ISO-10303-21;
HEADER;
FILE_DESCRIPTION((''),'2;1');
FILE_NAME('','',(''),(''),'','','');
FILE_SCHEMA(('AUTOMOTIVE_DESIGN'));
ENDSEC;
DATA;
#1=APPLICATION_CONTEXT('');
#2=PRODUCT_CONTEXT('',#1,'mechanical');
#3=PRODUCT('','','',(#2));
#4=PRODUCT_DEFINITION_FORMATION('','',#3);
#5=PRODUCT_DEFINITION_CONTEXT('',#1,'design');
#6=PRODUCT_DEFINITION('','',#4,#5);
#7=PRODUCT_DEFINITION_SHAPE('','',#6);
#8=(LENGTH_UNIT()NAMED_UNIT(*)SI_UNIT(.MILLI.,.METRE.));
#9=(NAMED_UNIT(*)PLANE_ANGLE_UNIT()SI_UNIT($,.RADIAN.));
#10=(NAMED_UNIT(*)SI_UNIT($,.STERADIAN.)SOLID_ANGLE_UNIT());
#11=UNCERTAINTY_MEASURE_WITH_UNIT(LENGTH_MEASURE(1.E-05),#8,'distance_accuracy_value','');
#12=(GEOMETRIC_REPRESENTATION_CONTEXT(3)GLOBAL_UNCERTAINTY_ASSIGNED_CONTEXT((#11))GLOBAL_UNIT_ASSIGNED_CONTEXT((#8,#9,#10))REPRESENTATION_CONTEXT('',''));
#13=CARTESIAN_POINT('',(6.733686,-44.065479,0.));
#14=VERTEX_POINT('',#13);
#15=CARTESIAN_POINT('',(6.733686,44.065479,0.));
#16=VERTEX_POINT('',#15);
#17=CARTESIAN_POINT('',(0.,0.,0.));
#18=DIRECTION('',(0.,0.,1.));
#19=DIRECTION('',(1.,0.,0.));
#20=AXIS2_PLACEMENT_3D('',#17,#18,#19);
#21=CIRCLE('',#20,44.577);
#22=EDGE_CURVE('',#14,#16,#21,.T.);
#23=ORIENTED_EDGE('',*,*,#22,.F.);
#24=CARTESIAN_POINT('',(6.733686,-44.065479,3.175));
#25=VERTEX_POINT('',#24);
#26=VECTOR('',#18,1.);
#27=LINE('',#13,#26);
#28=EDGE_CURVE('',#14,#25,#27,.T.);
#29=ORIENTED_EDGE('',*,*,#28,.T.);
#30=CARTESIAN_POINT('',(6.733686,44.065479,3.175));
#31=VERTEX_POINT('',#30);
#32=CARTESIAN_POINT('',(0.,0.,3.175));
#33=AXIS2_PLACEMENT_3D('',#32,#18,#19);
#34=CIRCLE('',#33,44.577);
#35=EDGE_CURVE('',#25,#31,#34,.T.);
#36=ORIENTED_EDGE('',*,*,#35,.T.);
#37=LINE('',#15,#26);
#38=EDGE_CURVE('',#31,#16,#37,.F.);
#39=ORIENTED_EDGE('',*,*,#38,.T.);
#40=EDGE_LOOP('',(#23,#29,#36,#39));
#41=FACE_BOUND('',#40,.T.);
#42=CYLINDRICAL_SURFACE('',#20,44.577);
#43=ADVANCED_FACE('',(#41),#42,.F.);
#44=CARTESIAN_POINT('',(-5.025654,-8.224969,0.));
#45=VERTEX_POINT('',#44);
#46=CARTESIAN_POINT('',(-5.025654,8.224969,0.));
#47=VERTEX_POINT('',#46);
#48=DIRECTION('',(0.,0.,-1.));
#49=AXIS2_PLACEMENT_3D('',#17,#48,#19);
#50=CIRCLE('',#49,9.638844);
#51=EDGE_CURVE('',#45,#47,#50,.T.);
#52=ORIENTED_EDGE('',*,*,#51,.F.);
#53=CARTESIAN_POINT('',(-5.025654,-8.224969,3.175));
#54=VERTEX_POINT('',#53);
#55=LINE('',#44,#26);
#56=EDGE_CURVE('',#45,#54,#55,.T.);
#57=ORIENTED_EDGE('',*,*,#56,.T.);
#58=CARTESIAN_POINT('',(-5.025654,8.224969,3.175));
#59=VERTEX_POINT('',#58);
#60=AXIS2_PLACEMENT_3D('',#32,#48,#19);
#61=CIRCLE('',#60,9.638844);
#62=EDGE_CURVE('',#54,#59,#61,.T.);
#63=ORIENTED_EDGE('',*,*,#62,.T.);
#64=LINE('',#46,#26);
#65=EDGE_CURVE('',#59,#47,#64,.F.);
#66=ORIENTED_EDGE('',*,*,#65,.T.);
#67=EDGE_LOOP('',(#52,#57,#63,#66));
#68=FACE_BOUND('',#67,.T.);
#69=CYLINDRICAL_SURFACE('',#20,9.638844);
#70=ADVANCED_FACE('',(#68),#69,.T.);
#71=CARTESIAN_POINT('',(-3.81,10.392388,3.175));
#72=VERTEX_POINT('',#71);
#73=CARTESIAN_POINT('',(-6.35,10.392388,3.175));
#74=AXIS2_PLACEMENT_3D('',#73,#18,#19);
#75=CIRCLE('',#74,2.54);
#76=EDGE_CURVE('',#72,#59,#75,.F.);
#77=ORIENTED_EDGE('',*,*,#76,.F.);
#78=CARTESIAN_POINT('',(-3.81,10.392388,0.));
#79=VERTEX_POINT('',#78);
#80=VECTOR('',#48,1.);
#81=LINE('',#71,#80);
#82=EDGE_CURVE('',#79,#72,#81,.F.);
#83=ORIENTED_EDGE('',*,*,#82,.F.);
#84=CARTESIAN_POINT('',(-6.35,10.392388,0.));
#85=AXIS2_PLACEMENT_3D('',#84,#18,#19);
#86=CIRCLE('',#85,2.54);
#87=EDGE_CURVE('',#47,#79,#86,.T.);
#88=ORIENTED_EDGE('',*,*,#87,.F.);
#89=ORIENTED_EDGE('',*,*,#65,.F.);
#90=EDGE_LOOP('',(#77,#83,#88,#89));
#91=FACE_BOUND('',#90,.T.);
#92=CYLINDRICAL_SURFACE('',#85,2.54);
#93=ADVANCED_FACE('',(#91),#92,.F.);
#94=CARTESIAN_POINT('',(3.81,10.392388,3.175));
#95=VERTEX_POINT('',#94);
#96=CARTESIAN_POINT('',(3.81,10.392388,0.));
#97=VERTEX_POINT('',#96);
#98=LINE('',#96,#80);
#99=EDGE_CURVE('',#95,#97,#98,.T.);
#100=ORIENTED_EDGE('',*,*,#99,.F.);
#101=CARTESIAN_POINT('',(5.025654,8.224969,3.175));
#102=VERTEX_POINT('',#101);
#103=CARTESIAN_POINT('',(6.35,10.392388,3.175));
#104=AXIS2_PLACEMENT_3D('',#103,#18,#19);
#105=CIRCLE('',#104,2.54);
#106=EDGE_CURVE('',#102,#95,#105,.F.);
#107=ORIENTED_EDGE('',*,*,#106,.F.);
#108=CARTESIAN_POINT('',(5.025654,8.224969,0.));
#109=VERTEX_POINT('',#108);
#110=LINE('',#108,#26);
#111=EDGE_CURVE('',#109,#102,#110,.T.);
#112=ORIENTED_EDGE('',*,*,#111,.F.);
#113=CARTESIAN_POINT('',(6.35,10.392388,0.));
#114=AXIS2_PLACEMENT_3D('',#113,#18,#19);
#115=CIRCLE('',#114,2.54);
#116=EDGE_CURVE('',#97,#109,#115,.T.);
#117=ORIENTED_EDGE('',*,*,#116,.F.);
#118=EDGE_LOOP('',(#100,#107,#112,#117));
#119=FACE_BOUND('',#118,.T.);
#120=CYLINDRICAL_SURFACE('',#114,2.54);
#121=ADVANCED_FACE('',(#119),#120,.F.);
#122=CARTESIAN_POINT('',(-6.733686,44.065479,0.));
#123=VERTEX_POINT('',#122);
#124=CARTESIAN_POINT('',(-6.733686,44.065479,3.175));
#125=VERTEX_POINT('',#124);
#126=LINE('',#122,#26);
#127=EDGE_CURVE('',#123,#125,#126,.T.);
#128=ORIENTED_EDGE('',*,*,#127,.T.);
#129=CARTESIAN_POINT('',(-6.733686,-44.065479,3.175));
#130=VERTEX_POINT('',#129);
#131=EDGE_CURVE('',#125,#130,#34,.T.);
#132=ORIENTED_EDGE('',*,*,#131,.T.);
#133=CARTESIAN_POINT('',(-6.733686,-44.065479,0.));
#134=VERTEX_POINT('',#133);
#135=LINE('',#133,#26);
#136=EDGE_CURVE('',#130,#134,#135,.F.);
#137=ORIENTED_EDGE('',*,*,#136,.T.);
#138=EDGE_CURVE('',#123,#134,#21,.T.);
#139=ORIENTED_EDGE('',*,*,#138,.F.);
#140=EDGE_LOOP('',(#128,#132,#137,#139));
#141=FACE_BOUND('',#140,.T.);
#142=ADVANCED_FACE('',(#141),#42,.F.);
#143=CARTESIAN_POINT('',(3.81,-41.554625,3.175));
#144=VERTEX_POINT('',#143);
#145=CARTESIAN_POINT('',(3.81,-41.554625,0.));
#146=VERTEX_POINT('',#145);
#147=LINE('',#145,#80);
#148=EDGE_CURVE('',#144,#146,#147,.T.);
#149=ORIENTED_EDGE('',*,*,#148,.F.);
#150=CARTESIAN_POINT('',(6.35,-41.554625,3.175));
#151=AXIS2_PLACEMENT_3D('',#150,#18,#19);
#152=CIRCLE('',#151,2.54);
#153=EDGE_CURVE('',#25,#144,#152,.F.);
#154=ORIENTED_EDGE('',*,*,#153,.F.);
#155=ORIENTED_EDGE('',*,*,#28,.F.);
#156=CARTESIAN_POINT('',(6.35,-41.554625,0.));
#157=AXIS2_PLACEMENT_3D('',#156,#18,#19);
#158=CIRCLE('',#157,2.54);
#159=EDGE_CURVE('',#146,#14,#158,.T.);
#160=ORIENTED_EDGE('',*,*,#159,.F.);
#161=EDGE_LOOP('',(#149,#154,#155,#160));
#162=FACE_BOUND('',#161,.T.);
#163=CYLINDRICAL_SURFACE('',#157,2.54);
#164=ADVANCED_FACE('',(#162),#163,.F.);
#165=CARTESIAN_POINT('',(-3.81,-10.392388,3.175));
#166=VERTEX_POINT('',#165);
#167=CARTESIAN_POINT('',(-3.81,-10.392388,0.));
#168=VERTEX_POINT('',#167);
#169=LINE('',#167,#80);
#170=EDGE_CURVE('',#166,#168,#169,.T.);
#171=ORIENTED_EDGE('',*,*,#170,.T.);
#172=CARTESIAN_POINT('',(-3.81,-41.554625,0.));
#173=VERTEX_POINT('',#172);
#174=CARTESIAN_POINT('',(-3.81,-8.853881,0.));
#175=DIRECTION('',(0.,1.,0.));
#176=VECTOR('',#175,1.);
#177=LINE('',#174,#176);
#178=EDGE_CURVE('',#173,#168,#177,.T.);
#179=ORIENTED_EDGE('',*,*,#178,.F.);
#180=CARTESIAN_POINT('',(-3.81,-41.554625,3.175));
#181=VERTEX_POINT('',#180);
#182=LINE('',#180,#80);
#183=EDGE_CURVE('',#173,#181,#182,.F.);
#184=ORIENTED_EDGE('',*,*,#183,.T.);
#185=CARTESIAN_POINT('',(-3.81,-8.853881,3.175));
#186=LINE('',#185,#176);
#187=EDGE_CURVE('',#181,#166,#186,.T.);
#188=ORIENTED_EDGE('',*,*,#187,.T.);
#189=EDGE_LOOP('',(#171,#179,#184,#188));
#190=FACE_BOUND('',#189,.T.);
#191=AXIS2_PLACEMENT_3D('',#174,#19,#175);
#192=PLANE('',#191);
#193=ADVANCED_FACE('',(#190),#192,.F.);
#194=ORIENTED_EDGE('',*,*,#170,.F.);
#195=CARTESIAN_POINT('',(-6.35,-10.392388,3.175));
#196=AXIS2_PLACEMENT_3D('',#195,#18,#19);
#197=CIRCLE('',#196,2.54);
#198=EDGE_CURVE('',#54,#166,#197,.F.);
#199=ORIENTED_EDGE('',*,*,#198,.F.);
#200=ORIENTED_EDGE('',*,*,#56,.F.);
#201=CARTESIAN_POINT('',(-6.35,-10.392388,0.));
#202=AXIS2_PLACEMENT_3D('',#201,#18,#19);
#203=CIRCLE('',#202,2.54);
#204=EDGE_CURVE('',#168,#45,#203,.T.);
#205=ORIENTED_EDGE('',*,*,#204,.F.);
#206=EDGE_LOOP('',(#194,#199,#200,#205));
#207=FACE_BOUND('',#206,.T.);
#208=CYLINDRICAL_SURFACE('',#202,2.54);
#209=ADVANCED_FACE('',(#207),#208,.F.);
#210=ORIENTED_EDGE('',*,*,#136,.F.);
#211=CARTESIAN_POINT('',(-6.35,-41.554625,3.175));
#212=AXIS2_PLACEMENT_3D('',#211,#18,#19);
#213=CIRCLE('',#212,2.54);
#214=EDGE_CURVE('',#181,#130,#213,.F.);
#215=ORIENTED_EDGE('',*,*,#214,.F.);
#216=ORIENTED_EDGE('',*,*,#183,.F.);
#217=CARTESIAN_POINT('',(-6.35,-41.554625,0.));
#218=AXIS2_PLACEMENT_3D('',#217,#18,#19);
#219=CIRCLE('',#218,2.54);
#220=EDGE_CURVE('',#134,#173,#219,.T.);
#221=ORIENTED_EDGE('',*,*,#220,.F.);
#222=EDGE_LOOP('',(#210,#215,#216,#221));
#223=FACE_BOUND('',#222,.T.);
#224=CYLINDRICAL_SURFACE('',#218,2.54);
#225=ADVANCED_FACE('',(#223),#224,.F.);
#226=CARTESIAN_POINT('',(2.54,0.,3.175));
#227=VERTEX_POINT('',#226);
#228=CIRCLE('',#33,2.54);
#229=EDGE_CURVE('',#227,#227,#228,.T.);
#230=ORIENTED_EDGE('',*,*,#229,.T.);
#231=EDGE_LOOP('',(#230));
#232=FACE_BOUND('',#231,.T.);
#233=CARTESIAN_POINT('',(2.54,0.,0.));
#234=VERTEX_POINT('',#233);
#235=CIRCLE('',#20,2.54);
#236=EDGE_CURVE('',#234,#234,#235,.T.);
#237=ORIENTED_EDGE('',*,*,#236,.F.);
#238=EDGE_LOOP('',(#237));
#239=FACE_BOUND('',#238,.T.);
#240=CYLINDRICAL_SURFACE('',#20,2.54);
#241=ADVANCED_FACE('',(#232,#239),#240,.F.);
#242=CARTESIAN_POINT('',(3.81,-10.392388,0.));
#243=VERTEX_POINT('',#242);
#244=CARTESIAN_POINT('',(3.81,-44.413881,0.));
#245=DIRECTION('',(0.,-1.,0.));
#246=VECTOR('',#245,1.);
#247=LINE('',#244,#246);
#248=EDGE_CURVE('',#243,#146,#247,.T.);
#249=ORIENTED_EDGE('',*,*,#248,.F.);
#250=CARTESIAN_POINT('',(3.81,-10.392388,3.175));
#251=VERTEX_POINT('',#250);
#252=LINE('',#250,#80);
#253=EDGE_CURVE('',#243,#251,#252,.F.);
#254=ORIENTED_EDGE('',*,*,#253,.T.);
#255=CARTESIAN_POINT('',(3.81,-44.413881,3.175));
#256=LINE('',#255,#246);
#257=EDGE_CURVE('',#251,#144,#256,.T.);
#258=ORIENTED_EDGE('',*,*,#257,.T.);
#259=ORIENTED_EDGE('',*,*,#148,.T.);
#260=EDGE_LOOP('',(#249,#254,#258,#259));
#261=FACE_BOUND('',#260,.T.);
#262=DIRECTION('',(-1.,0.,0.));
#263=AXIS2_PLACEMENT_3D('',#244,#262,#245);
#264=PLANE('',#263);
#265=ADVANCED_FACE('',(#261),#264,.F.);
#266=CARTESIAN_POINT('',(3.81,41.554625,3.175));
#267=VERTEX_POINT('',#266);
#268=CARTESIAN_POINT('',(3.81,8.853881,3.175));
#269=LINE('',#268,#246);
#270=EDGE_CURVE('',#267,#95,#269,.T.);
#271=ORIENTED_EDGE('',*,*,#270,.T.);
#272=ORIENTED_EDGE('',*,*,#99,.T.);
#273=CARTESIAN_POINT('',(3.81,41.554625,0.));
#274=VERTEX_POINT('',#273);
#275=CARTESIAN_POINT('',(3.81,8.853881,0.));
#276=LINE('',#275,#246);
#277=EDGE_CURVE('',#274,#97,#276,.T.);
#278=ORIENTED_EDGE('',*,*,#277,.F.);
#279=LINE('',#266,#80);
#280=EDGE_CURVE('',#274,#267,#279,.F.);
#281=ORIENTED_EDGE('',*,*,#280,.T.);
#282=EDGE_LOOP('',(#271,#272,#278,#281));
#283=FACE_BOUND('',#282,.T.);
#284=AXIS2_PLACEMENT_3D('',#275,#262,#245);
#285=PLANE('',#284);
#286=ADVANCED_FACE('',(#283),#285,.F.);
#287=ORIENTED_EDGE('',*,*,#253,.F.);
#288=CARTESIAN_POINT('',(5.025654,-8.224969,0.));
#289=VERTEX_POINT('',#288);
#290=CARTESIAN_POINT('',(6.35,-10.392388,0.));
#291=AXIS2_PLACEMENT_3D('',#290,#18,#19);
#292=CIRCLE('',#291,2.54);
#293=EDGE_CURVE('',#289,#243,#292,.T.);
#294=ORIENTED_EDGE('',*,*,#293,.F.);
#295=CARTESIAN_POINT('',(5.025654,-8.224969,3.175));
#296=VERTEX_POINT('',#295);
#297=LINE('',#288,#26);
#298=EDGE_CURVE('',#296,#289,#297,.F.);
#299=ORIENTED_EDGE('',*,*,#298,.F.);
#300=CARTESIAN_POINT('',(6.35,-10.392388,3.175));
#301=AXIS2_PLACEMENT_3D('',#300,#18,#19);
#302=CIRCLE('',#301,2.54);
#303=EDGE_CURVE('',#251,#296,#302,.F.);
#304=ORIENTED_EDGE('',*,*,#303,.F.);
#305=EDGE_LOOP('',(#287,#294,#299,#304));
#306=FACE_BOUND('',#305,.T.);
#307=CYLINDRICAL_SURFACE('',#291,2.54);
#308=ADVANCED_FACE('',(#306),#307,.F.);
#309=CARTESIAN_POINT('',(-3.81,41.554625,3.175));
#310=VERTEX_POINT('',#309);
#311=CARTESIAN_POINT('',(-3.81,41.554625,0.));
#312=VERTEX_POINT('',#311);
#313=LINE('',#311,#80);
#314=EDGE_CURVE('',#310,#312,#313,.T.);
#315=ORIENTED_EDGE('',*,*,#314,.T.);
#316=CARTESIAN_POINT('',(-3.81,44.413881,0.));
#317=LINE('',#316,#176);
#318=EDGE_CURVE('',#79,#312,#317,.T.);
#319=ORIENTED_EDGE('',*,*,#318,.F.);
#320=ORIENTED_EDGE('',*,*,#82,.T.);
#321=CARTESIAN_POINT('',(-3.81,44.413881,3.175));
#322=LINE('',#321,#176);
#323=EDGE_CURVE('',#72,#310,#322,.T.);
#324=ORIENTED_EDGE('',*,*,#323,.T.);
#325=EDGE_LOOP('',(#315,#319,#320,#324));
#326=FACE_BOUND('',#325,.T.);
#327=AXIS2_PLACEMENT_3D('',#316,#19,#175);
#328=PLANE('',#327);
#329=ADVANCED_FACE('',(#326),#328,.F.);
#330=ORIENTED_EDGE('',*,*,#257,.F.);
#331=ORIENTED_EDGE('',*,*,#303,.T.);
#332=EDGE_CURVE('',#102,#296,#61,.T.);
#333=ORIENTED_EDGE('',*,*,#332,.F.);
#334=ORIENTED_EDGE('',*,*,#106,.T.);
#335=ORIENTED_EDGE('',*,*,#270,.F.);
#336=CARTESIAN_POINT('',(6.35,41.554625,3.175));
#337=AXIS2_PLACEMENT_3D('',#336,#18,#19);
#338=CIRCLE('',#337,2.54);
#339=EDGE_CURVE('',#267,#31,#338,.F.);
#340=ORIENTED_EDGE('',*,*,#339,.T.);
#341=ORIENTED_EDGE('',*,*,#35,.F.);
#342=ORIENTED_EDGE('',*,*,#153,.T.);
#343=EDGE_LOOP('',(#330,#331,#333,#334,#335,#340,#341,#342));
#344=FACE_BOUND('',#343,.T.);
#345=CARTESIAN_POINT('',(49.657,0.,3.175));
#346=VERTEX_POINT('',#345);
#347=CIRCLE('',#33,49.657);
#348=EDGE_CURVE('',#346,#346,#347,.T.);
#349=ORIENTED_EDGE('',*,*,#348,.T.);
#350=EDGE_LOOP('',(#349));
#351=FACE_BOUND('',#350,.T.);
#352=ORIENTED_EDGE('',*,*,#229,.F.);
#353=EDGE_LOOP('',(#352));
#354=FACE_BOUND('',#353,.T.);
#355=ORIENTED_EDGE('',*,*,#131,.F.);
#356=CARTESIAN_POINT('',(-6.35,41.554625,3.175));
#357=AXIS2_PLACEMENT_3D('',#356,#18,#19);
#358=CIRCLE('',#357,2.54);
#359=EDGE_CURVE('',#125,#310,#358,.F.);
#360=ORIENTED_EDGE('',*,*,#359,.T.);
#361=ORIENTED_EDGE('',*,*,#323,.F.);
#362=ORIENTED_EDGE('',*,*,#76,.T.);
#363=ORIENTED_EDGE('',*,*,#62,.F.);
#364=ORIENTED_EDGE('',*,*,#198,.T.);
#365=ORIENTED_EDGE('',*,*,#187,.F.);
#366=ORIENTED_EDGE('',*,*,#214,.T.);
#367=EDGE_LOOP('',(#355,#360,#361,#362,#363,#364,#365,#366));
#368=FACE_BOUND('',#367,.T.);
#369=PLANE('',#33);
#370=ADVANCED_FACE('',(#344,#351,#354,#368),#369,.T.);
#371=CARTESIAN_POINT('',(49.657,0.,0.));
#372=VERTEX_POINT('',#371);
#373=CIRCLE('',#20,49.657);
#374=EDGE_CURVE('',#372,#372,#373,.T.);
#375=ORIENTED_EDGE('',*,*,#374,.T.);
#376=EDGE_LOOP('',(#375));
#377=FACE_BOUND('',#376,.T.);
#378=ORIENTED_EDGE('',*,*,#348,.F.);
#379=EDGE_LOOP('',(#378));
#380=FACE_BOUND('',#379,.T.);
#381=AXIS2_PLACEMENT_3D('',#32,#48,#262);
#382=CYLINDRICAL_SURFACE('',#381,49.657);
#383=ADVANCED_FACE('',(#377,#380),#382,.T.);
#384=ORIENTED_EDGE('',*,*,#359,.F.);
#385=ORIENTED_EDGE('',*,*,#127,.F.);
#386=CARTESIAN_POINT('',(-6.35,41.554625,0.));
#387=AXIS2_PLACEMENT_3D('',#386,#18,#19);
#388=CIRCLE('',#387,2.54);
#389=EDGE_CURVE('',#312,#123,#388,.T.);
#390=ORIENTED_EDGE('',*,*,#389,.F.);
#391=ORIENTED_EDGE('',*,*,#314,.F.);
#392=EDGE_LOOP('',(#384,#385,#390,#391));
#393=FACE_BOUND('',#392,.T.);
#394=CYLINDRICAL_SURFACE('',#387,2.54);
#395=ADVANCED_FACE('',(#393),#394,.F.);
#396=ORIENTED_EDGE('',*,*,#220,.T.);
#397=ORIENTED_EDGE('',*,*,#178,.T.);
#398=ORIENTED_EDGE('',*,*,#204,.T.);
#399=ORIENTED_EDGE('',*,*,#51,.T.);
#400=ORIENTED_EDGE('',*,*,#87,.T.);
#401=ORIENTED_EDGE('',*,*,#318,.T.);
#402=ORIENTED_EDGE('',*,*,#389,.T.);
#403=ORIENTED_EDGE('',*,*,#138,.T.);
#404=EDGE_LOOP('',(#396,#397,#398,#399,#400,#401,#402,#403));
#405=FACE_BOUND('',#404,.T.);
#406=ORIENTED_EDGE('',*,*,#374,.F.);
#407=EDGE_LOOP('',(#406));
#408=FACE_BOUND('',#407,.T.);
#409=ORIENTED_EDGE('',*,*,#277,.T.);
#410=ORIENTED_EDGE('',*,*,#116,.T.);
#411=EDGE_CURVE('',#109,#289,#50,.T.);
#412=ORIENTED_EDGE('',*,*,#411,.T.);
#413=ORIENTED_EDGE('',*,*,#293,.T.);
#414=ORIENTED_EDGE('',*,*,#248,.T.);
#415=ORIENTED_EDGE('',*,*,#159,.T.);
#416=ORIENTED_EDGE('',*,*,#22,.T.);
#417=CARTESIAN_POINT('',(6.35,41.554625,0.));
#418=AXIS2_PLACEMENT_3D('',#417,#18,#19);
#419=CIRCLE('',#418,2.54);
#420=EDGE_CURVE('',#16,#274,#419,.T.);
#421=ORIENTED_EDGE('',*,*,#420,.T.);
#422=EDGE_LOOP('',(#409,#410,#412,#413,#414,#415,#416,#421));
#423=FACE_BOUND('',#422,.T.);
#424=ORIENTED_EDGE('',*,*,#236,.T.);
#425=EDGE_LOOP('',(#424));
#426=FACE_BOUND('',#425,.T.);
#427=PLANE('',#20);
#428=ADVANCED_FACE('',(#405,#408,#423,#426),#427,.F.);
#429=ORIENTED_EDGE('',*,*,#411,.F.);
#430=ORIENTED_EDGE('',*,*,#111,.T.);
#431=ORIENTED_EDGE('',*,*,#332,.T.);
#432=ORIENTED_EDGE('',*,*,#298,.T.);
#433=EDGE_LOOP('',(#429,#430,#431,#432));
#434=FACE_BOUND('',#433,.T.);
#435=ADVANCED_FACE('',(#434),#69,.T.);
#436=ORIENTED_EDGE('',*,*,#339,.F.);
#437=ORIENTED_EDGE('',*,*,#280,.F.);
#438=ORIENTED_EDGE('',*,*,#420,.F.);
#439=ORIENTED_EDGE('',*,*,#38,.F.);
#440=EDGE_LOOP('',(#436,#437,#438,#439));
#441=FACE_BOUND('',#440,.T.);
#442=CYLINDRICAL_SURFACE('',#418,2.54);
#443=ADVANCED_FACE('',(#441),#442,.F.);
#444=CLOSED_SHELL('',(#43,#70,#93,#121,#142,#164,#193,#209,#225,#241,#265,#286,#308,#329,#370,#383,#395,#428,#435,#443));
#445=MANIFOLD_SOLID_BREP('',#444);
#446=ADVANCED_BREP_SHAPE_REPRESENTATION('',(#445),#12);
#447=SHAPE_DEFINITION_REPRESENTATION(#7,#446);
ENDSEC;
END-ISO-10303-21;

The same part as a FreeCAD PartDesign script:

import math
import FreeCAD as App
import Part
import Sketcher

V = App.Vector
Q = App.Units.Quantity


def edges_at(feature, points):
    """Names of the edges that pass closest to the given points."""
    edges = feature.Shape.Edges
    near = lambda p: min(range(len(edges)), key=lambda i: edges[i].distToShape(Part.Vertex(*p))[0])
    return sorted({f"Edge{near(p) + 1}" for p in points})

doc = App.newDocument("Part")
body = doc.addObject("PartDesign::Body", "Body")

# Sketch on XY plane
sketch1 = doc.addObject("Sketcher::SketchObject", "Sketch")
body.addObject(sketch1)
sketch1.AttachmentSupport = (doc.XY_Plane, [""])
sketch1.MapMode = "FlatFace"
sketch1.addGeometry(Part.Circle(V(0, 0, 0), V(0, 0, 1), 50), False)
sketch1.addConstraint(Sketcher.Constraint("Coincident", 0, 3, -1, 1))
sketch1.addConstraint(Sketcher.Constraint("Diameter", 0, Q("3.91 in")))
pad1 = doc.addObject("PartDesign::Pad", "Pad")
body.addObject(pad1)
pad1.Profile = sketch1
pad1.Length = Q("0.125 in")

# Sketch on XY plane
sketch2 = doc.addObject("Sketcher::SketchObject", "Sketch001")
body.addObject(sketch2)
sketch2.AttachmentSupport = (doc.XY_Plane, [""])
sketch2.MapMode = "FlatFace"
sketch2.AttachmentOffset = App.Placement(V(0, 0, 0.125 * 25.4), App.Rotation())
sketch2.addGeometry(Part.LineSegment(V(-4, 9, 0), V(-4, 44, 0)), False)
sketch2.addGeometry(Part.ArcOfCircle(Part.Circle(V(0, 0, 0), V(0, 0, 1), 45), math.radians(95), math.radians(265)), False)
sketch2.addGeometry(Part.LineSegment(V(-4, -44, 0), V(-4, -9, 0)), False)
sketch2.addGeometry(Part.ArcOfCircle(Part.Circle(V(0, 0, 0), V(0, 0, 1), 10), math.radians(113), math.radians(247)), False)
sketch2.addGeometry(Part.LineSegment(V(4, 44, 0), V(4, 9, 0)), False)
sketch2.addGeometry(Part.ArcOfCircle(Part.Circle(V(0, 0, 0), V(0, 0, 1), 10), math.radians(-67), math.radians(67)), False)
sketch2.addGeometry(Part.LineSegment(V(4, -9, 0), V(4, -44, 0)), False)
sketch2.addGeometry(Part.ArcOfCircle(Part.Circle(V(0, 0, 0), V(0, 0, 1), 45), math.radians(-85), math.radians(85)), False)
sketch2.addConstraint(Sketcher.Constraint("Coincident", 0, 2, 1, 1))
sketch2.addConstraint(Sketcher.Constraint("Coincident", 1, 2, 2, 1))
sketch2.addConstraint(Sketcher.Constraint("Coincident", 2, 2, 3, 2))
sketch2.addConstraint(Sketcher.Constraint("Coincident", 3, 1, 0, 1))
sketch2.addConstraint(Sketcher.Constraint("Coincident", 4, 2, 5, 2))
sketch2.addConstraint(Sketcher.Constraint("Coincident", 5, 1, 6, 1))
sketch2.addConstraint(Sketcher.Constraint("Coincident", 6, 2, 7, 1))
sketch2.addConstraint(Sketcher.Constraint("Coincident", 7, 2, 4, 1))
sketch2.addConstraint(Sketcher.Constraint("Vertical", 0))
sketch2.addConstraint(Sketcher.Constraint("Vertical", 2))
sketch2.addConstraint(Sketcher.Constraint("Vertical", 4))
sketch2.addConstraint(Sketcher.Constraint("Vertical", 6))
sketch2.addConstraint(Sketcher.Constraint("Coincident", 1, 3, -1, 1))
sketch2.addConstraint(Sketcher.Constraint("Coincident", 3, 3, -1, 1))
sketch2.addConstraint(Sketcher.Constraint("Coincident", 5, 3, -1, 1))
sketch2.addConstraint(Sketcher.Constraint("Coincident", 7, 3, -1, 1))
sketch2.addConstraint(Sketcher.Constraint("Equal", 3, 5))
sketch2.addConstraint(Sketcher.Constraint("Equal", 1, 7))
sketch2.addConstraint(Sketcher.Constraint("Horizontal", 3, 1, 4, 2))
sketch2.addConstraint(Sketcher.Constraint("Horizontal", 2, 2, 5, 1))
sketch2.addConstraint(Sketcher.Constraint("Vertical", 0, 2, 1, 2))
sketch2.addConstraint(Sketcher.Constraint("DistanceY", 0, 1, 0, 2, Q("1.4 in")))
sketch2.addConstraint(Sketcher.Constraint("Radius", 1, Q("1.755 in")))
sketch2.addConstraint(Sketcher.Constraint("DistanceX", 3, 1, 4, 2, Q("0.3 in")))
pocket1 = doc.addObject("PartDesign::Pocket", "Pocket")
body.addObject(pocket1)
pocket1.Profile = sketch2
pocket1.Type = "ThroughAll"
doc.recompute()

fillet = doc.addObject("PartDesign::Fillet", "Fillet")
body.addObject(fillet)
fillet.Base = (pocket1, edges_at(pocket1, [
    (-3.81, -44.414, 1.587),
    (-3.81, 44.414, 1.587),
    (3.81, 44.414, 1.587),
    (3.81, -44.414, 1.587),
]))
fillet.Radius = Q("0.1 in")
doc.recompute()

fillet2 = doc.addObject("PartDesign::Fillet", "Fillet001")
body.addObject(fillet2)
fillet2.Base = (fillet, edges_at(fillet, [
    (-3.81, 8.854, 1.587),
    (-3.81, -8.854, 1.587),
    (3.81, -8.854, 1.587),
    (3.81, 8.854, 1.587),
]))
fillet2.Radius = Q("0.1 in")

# Sketch on XY plane
sketch3 = doc.addObject("Sketcher::SketchObject", "Sketch002")
body.addObject(sketch3)
sketch3.AttachmentSupport = (doc.XY_Plane, [""])
sketch3.MapMode = "FlatFace"
sketch3.AttachmentOffset = App.Placement(V(0, 0, 0.125 * 25.4), App.Rotation())
sketch3.addGeometry(Part.Circle(V(0, 0, 0), V(0, 0, 1), 2.5), False)
sketch3.addConstraint(Sketcher.Constraint("Coincident", 0, 3, -1, 1))
sketch3.addConstraint(Sketcher.Constraint("Diameter", 0, Q("0.2 in")))
pocket2 = doc.addObject("PartDesign::Pocket", "Pocket001")
body.addObject(pocket2)
pocket2.Profile = sketch3
pocket2.Type = "ThroughAll"

doc.recompute()
